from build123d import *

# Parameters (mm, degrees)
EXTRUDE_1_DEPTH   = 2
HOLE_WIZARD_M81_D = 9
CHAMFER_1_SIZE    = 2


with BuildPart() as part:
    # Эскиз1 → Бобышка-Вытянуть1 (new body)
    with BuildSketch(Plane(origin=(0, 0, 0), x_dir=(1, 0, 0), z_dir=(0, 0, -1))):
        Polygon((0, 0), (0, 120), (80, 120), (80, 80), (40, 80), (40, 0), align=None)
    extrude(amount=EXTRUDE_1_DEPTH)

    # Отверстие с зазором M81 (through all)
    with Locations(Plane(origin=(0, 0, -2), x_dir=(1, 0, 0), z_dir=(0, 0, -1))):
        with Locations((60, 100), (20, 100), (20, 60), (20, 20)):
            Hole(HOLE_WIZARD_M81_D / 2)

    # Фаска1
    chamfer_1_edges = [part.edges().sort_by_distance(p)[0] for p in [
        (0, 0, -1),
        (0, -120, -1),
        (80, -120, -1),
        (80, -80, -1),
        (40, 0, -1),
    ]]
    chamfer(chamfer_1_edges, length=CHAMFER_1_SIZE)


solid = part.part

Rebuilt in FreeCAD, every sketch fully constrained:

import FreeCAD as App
import Part
import Sketcher
from FreeCAD import Vector
Q = App.Units.Quantity


def edges_at(feature, points):
    """Names of the edges that pass closest to the given points."""
    edges = feature.Shape.Edges
    near = lambda p: min(range(len(edges)), key=lambda i: edges[i].distToShape(Part.Vertex(*p))[0])
    return sorted({f"Edge{near(p) + 1}" for p in points})

doc = App.newDocument("Part")
params = doc.addObject("Spreadsheet::Sheet", "Params")
for row, (alias, value) in enumerate([
    ("sketch1_width", "40 mm"),
    ("pad1_length", "2 mm"),
    ("sketch2_diameter", "9 mm"),
    ("hole_diameter", "9 mm"),
    ("chamfer_size", "2 mm"),
], start=1):
    params.set(f"A{row}", alias)
    params.set(f"B{row}", "=" + value)
    params.setAlias(f"B{row}", alias)

body = doc.addObject("PartDesign::Body", "Body")

# Sketch on XY plane
sketch1 = body.newObject("Sketcher::SketchObject", "Sketch")
sketch1.AttachmentSupport = (doc.getObject("XY_Plane"), [""])
sketch1.MapMode = "FlatFace"
sketch1.addGeometry(Part.LineSegment(Vector(0, -120, 0), Vector(0, 0, 0)), False)
sketch1.addGeometry(Part.LineSegment(Vector(0, 0, 0), Vector(40, 0, 0)), False)
sketch1.addGeometry(Part.LineSegment(Vector(40, 0, 0), Vector(40, -80, 0)), False)
sketch1.addGeometry(Part.LineSegment(Vector(40, -80, 0), Vector(80, -80, 0)), False)
sketch1.addGeometry(Part.LineSegment(Vector(80, -80, 0), Vector(80, -120, 0)), False)
sketch1.addGeometry(Part.LineSegment(Vector(80, -120, 0), Vector(0, -120, 0)), False)
sketch1.addConstraint(Sketcher.Constraint("Coincident", 0, 2, 1, 1))
sketch1.addConstraint(Sketcher.Constraint("Coincident", 1, 2, 2, 1))
sketch1.addConstraint(Sketcher.Constraint("Coincident", 2, 2, 3, 1))
sketch1.addConstraint(Sketcher.Constraint("Coincident", 3, 2, 4, 1))
sketch1.addConstraint(Sketcher.Constraint("Coincident", 4, 2, 5, 1))
sketch1.addConstraint(Sketcher.Constraint("Coincident", 5, 2, 0, 1))
sketch1.addConstraint(Sketcher.Constraint("Vertical", 0))
sketch1.addConstraint(Sketcher.Constraint("Horizontal", 1))
sketch1.addConstraint(Sketcher.Constraint("Vertical", 2))
sketch1.addConstraint(Sketcher.Constraint("Horizontal", 3))
sketch1.addConstraint(Sketcher.Constraint("Vertical", 4))
sketch1.addConstraint(Sketcher.Constraint("Horizontal", 5))
sketch1.addConstraint(Sketcher.Constraint("Coincident", 0, 2, -1, 1))
sketch1.addConstraint(Sketcher.Constraint("Equal", 1, 3))
sketch1.addConstraint(Sketcher.Constraint("Equal", 5, 2))
sketch1.addConstraint(Sketcher.Constraint("Equal", 3, 4))
sketch1.addConstraint(Sketcher.Constraint("DistanceX", 1, 1, 1, 2, Q("40 mm")))
sketch1.setExpression("Constraints[16]", "Params.sketch1_width")
pad1 = body.newObject("PartDesign::Pad", "Pad")
pad1.Profile = sketch1
pad1.setExpression("Length", "Params.pad1_length")
pad1.Reversed = True

# Sketch on XY plane
sketch2 = body.newObject("Sketcher::SketchObject", "Sketch001")
sketch2.AttachmentSupport = (doc.getObject("XY_Plane"), [""])
sketch2.MapMode = "FlatFace"
sketch2.AttachmentOffset = App.Placement(Vector(0, 0, -2), App.Rotation())
sketch2.addGeometry(Part.Circle(Vector(60, -100, 0), Vector(0, 0, 1), 4.5), False)
sketch2.addGeometry(Part.Circle(Vector(20, -100, 0), Vector(0, 0, 1), 4.5), False)
sketch2.addGeometry(Part.Circle(Vector(20, -60, 0), Vector(0, 0, 1), 4.5), False)
sketch2.addGeometry(Part.Circle(Vector(20, -20, 0), Vector(0, 0, 1), 4.5), False)
sketch2.addConstraint(Sketcher.Constraint("Equal", 0, 1))
sketch2.addConstraint(Sketcher.Constraint("Equal", 1, 2))
sketch2.addConstraint(Sketcher.Constraint("Equal", 2, 3))
sketch2.addConstraint(Sketcher.Constraint("Horizontal", 0, 3, 1, 3))
sketch2.addConstraint(Sketcher.Constraint("Vertical", 1, 3, 2, 3))
sketch2.addConstraint(Sketcher.Constraint("Vertical", 2, 3, 3, 3))
sketch2.addConstraint(Sketcher.Constraint("Diameter", 0, Q("9 mm")))
sketch2.addConstraint(Sketcher.Constraint("DistanceX", -1, 1, 0, 3, Q("60 mm")))
sketch2.addConstraint(Sketcher.Constraint("DistanceY", 0, 3, -1, 1, Q("100 mm")))
sketch2.addConstraint(Sketcher.Constraint("DistanceX", -1, 1, 1, 3, Q("20 mm")))
sketch2.addConstraint(Sketcher.Constraint("DistanceY", 2, 3, -1, 1, Q("60 mm")))
sketch2.addConstraint(Sketcher.Constraint("DistanceY", 3, 3, -1, 1, Q("20 mm")))
sketch2.setExpression("Constraints[6]", "Params.sketch2_diameter")
doc.recompute()
hole = body.newObject("PartDesign::Hole", "Hole")
hole.Profile = sketch2
hole.ThreadType = "None"
hole.setExpression("Diameter", "Params.hole_diameter")
hole.DepthType = "ThroughAll"
hole.Reversed = True
doc.recompute()

chamfer = body.newObject("PartDesign::Chamfer", "Chamfer")
chamfer.Base = (hole, edges_at(hole, [
    (0, 0, -1),
    (0, -120, -1),
    (80, -120, -1),
    (80, -80, -1),
    (40, 0, -1),
]))
chamfer.setExpression("Size", "Params.chamfer_size")

doc.recompute()
